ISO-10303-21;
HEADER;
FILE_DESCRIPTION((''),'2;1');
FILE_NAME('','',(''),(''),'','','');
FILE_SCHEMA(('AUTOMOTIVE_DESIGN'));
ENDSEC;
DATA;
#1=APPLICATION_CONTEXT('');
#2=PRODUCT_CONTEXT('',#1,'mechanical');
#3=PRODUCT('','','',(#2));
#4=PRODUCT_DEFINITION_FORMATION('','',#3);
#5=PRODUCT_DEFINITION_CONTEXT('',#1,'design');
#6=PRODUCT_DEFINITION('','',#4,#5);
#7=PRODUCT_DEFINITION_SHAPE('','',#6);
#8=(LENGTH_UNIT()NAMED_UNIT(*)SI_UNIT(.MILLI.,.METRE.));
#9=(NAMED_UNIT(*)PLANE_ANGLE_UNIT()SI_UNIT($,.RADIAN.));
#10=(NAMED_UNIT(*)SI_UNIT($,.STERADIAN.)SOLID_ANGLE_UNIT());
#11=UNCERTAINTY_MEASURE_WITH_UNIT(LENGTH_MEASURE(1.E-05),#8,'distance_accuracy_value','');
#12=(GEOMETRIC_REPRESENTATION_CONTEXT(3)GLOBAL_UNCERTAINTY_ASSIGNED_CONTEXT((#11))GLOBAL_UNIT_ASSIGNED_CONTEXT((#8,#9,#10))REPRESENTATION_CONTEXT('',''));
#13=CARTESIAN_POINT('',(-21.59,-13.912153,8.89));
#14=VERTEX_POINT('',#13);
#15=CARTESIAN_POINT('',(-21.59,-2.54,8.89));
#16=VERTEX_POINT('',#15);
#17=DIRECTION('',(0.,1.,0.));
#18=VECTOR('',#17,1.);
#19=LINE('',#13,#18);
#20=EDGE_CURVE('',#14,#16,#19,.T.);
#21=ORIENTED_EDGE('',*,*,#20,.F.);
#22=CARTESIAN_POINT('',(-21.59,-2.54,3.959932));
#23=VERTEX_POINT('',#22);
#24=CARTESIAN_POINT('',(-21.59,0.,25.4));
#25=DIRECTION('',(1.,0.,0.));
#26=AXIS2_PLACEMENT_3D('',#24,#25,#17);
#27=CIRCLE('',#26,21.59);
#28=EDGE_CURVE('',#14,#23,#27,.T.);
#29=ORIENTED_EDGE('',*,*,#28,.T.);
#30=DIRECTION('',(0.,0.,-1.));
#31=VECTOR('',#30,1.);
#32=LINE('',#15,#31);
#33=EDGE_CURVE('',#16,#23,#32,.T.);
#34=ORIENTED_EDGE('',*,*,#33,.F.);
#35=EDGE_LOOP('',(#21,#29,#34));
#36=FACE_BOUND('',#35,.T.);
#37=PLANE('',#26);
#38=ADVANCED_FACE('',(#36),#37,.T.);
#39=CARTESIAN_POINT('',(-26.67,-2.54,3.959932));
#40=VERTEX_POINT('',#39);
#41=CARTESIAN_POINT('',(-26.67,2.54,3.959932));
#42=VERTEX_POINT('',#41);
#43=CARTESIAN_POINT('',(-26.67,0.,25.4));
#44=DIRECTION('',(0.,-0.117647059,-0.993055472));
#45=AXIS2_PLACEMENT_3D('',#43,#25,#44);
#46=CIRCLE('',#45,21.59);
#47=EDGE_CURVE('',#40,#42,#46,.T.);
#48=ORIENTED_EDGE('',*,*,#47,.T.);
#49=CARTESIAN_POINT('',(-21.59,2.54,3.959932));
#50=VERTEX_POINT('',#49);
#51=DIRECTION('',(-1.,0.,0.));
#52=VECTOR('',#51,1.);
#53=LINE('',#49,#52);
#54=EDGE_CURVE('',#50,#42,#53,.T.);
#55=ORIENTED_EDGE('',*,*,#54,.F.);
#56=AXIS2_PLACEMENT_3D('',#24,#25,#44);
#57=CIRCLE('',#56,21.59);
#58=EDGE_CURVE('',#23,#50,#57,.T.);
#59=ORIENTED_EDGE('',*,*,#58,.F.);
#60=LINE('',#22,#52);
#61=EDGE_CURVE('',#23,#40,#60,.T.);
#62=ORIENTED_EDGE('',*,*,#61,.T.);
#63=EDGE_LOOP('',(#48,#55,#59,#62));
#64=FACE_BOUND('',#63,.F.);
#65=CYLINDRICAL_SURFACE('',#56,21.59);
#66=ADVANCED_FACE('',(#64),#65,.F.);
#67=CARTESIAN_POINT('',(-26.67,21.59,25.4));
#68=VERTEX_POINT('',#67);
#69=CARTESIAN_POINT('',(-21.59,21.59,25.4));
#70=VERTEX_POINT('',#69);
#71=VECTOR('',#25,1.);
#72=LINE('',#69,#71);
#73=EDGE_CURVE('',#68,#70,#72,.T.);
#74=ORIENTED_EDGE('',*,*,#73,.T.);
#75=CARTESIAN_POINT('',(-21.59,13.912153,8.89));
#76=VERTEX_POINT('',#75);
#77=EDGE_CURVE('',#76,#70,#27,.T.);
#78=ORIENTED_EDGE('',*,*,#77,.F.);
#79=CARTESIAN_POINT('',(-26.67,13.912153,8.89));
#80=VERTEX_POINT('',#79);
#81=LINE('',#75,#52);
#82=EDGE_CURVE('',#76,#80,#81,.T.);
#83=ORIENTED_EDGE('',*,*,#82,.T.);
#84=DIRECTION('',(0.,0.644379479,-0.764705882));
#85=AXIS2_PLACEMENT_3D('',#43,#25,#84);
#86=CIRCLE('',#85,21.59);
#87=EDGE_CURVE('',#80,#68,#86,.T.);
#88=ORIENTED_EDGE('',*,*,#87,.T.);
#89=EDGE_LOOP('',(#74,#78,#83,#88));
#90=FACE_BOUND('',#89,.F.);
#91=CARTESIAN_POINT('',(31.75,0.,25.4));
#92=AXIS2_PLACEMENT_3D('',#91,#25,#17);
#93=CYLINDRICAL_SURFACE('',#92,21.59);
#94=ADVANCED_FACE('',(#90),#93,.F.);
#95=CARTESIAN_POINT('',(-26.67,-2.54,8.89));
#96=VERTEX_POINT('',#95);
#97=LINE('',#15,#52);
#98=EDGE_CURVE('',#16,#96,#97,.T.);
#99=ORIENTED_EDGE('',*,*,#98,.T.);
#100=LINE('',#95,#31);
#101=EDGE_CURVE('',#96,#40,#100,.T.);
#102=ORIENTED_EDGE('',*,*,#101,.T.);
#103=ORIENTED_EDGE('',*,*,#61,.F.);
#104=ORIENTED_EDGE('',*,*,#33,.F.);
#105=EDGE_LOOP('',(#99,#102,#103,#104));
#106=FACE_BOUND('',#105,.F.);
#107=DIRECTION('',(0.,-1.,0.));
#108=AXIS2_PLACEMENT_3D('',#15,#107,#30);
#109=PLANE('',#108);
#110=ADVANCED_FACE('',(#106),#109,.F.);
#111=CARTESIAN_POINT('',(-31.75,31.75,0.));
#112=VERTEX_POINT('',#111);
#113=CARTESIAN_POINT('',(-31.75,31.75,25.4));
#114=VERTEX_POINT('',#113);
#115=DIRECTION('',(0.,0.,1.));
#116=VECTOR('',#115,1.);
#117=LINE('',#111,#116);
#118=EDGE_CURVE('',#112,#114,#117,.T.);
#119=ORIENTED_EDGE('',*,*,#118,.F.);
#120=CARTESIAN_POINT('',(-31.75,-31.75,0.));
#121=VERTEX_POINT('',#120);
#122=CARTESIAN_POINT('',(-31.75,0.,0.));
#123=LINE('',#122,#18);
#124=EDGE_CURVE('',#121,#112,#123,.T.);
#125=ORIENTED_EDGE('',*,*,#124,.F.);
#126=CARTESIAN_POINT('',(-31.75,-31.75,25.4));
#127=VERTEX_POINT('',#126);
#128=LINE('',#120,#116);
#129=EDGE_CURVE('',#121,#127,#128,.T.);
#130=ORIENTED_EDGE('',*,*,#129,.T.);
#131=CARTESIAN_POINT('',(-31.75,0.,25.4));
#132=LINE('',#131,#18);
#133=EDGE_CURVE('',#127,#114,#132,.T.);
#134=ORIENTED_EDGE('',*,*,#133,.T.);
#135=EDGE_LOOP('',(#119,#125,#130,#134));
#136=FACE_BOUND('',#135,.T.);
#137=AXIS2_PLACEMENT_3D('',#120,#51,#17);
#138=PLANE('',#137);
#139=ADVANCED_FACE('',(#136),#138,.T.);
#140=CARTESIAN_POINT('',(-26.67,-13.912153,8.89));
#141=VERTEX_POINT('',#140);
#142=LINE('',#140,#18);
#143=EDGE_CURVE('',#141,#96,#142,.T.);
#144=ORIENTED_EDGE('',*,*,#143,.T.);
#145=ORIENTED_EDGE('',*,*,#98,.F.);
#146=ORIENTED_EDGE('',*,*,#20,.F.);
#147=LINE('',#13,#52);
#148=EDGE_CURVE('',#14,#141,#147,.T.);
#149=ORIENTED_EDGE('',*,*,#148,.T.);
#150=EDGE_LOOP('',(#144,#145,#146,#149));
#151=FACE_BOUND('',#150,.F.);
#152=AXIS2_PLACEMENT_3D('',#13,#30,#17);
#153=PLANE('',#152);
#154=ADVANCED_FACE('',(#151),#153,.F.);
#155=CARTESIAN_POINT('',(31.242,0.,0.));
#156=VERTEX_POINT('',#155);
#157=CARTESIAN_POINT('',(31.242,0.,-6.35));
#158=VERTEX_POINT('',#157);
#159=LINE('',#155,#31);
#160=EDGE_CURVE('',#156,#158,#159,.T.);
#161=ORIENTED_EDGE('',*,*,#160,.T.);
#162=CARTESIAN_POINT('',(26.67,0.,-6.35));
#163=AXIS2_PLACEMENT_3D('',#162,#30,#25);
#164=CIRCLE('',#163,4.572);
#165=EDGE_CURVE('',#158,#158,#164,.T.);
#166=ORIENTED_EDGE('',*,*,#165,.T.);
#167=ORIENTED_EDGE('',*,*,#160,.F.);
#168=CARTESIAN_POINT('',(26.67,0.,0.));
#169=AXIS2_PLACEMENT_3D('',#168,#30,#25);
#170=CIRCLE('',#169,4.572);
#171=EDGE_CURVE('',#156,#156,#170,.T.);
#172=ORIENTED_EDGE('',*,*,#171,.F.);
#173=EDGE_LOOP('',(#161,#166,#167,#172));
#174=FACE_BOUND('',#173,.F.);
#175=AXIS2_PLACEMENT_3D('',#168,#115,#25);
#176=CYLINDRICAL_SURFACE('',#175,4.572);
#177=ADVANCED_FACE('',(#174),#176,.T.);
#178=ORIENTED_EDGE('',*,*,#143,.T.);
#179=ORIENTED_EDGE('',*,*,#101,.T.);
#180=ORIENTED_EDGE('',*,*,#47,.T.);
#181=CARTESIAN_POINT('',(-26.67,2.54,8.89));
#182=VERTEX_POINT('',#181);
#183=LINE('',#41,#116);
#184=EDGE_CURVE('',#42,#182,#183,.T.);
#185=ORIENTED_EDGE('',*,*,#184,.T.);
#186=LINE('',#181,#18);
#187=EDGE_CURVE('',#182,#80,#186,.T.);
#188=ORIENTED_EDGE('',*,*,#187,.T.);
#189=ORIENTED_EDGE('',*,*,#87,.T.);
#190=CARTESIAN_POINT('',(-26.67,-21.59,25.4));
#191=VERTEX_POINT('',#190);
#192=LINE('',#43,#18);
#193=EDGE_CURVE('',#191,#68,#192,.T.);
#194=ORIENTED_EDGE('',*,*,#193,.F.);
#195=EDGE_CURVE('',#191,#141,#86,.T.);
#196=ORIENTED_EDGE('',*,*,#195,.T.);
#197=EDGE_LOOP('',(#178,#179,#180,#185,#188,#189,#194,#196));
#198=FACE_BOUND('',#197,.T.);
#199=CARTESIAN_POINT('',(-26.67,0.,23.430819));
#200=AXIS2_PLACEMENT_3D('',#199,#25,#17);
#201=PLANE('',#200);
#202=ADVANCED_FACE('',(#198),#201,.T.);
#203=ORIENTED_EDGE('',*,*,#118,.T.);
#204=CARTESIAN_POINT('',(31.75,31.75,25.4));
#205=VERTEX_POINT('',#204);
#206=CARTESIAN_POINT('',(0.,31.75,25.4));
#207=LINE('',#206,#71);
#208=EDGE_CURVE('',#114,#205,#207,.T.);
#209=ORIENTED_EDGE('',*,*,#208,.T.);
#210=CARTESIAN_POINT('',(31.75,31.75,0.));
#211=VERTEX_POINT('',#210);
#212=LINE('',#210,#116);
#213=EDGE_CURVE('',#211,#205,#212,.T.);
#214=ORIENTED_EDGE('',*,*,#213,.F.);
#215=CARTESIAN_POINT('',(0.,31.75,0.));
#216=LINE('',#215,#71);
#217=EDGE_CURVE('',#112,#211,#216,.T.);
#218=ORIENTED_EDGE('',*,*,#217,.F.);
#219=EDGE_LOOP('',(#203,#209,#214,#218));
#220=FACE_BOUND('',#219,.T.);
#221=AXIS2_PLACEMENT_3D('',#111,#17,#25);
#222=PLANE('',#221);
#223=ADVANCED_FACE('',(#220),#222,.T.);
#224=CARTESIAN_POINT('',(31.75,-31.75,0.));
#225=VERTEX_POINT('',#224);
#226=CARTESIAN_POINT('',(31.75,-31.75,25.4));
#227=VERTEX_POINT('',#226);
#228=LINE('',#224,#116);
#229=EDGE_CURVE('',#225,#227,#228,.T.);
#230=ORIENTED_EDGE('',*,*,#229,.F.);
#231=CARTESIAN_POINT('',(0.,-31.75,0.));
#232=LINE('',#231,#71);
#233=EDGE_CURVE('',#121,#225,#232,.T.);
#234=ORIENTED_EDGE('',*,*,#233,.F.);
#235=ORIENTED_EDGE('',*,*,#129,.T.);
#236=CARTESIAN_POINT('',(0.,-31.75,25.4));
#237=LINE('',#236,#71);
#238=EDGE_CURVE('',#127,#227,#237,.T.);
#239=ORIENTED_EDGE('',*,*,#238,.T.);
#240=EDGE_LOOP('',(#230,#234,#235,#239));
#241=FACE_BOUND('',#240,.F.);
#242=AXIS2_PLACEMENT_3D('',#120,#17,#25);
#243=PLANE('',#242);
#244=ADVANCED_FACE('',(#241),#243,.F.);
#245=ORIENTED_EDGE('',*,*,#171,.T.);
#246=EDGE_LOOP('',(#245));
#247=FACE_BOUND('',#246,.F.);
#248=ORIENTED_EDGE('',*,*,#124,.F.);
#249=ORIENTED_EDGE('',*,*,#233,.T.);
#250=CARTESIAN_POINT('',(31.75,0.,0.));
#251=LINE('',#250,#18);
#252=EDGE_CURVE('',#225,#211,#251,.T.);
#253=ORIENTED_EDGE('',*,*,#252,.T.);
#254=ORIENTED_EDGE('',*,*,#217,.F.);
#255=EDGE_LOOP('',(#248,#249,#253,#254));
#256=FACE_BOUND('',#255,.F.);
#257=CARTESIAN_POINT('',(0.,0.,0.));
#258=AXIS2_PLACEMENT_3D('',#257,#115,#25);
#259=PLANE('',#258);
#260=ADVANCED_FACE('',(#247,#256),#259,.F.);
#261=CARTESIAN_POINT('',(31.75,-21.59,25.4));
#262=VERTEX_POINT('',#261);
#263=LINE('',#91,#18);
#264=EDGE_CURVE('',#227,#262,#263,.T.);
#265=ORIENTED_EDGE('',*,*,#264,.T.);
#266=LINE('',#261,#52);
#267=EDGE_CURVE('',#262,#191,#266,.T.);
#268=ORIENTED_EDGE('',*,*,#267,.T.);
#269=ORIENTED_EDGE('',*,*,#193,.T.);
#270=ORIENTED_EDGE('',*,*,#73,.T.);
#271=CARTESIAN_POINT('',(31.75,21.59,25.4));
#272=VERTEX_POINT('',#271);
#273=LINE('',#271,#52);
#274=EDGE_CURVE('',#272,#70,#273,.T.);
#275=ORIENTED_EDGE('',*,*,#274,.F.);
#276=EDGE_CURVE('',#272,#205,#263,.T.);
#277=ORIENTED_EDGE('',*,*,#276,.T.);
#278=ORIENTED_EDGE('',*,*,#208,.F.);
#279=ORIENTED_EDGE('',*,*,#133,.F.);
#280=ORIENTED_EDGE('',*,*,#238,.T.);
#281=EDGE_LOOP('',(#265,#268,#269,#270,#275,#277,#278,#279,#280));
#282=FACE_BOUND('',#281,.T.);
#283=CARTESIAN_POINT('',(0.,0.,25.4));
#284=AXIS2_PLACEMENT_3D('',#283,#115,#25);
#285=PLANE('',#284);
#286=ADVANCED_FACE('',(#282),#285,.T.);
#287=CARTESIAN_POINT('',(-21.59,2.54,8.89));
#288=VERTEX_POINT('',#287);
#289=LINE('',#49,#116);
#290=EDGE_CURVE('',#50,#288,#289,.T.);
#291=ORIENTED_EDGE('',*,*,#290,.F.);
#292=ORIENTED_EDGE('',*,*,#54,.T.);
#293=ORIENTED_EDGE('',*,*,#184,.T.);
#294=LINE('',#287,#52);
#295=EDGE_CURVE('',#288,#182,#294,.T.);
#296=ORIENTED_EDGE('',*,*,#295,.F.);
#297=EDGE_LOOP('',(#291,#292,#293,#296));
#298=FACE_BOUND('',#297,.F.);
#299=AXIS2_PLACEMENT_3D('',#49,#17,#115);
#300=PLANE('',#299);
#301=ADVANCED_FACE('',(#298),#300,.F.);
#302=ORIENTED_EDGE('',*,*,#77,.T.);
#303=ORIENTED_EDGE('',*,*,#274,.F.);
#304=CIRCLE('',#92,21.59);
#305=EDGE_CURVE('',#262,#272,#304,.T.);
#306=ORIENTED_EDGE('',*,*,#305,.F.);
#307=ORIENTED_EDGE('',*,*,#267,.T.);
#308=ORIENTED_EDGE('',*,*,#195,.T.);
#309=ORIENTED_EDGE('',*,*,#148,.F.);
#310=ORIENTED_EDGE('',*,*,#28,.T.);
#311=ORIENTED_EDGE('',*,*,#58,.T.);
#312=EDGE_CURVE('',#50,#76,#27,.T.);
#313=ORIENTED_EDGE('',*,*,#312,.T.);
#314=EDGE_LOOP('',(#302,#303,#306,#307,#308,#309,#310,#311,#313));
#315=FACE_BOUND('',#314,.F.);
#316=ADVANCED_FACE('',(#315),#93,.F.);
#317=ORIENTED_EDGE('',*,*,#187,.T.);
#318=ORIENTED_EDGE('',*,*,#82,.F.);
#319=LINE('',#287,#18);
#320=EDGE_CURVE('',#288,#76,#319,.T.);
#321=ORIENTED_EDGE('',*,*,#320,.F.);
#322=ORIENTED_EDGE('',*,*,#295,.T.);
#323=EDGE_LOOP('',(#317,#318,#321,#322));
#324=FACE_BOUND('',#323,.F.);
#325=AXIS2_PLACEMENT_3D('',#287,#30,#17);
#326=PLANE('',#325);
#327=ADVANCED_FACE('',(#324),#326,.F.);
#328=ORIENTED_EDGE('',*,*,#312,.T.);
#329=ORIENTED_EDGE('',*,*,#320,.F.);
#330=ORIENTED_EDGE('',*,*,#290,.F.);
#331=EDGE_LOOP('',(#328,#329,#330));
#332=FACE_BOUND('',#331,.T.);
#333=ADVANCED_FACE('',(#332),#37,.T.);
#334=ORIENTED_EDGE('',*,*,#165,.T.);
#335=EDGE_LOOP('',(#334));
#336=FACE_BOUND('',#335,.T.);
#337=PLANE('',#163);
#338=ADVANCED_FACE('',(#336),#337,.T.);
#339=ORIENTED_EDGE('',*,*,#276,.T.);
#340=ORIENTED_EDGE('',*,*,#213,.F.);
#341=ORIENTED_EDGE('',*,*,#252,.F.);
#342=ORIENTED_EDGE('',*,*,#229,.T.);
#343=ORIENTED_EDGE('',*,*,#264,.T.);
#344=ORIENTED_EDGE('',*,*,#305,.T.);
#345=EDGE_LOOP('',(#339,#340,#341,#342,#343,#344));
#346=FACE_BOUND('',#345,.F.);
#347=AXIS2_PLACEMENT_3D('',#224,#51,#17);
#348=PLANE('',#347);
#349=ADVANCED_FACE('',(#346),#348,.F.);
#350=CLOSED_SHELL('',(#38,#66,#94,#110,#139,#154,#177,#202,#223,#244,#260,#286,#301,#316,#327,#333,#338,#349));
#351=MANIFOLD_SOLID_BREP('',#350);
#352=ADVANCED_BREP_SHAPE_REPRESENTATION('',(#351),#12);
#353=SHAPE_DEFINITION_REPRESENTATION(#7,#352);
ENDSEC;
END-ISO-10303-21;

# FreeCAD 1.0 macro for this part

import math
import FreeCAD as App
import Part
import Sketcher
from FreeCAD import Vector
Q = App.Units.Quantity

doc = App.newDocument("Part")
body = doc.addObject("PartDesign::Body", "Body")

sketch1 = body.newObject("Sketcher::SketchObject", "Sketch")
sketch1.AttachmentSupport = (doc.getObject("XY_Plane"), [""])
sketch1.MapMode = "FlatFace"
sketch1.addGeometry([
    Part.LineSegment(Vector(-32, 32, 0), Vector(-32, -32, 0)),
    Part.LineSegment(Vector(-32, -32, 0), Vector(32, -32, 0)),
    Part.LineSegment(Vector(32, -32, 0), Vector(32, 32, 0)),
    Part.LineSegment(Vector(32, 32, 0), Vector(-32, 32, 0)),
], False)
sketch1.addConstraint([
    Sketcher.Constraint("Coincident", 0, 2, 1, 1),
    Sketcher.Constraint("Coincident", 1, 2, 2, 1),
    Sketcher.Constraint("Coincident", 2, 2, 3, 1),
    Sketcher.Constraint("Coincident", 3, 2, 0, 1),
    Sketcher.Constraint("Vertical", 0),
    Sketcher.Constraint("Horizontal", 1),
    Sketcher.Constraint("Vertical", 2),
    Sketcher.Constraint("Horizontal", 3),
    Sketcher.Constraint("Symmetric", 0, 2, 2, 2, -1, 1),
    Sketcher.Constraint("Equal", 3, 0),
    Sketcher.Constraint("DistanceX", 1, 1, 1, 2, Q("2.5 in")),
])
pad1 = body.newObject("PartDesign::Pad", "Pad")
pad1.Profile = sketch1
pad1.Length = Q("1 in")

sketch2 = body.newObject("Sketcher::SketchObject", "Sketch001")
sketch2.AttachmentSupport = (doc.getObject("YZ_Plane"), [""])
sketch2.MapMode = "FlatFace"
sketch2.AttachmentOffset = App.Placement(Vector(0, 0, 1.25 * 25.4), App.Rotation())
sketch2.addGeometry(Part.Circle(Vector(0, 25, 0), Vector(0, 0, 1), 22), False)
sketch2.addConstraint([
    Sketcher.Constraint("PointOnObject", 0, 3, -2),
    Sketcher.Constraint("Diameter", 0, Q("1.7 in")),
    Sketcher.Constraint("DistanceY", -1, 1, 0, 3, Q("1 in")),
])
pocket1 = body.newObject("PartDesign::Pocket", "Pocket")
pocket1.Profile = sketch2
pocket1.Length = Q("2.1 in")

sketch3 = body.newObject("Sketcher::SketchObject", "Sketch002")
sketch3.AttachmentSupport = (doc.getObject("XY_Plane"), [""])
sketch3.MapMode = "FlatFace"
sketch3.addGeometry(Part.Circle(Vector(26.7, 0, 0), Vector(0, 0, 1), 4.6), False)
sketch3.addConstraint([
    Sketcher.Constraint("PointOnObject", 0, 3, -1),
    Sketcher.Constraint("Diameter", 0, Q("0.36 in")),
    Sketcher.Constraint("DistanceX", -1, 1, 0, 3, Q("1.05 in")),
])
pad2 = body.newObject("PartDesign::Pad", "Pad001")
pad2.Profile = sketch3
pad2.Length = Q("0.25 in")
pad2.Reversed = True

sketch4 = body.newObject("Sketcher::SketchObject", "Sketch003")
sketch4.AttachmentSupport = (doc.getObject("YZ_Plane"), [""])
sketch4.MapMode = "FlatFace"
sketch4.AttachmentOffset = App.Placement(Vector(0, 0, -0.85 * 25.4), App.Rotation())
sketch4.addGeometry([
    Part.LineSegment(Vector(-2.5, 8.9, 0), Vector(-2.5, 4, 0)),
    Part.ArcOfCircle(Part.Circle(Vector(0, 25.4, 0), Vector(0, 0, 1), 21.6), math.radians(-96.76), math.radians(-83.24)),
    Part.LineSegment(Vector(2.5, 4, 0), Vector(2.5, 8.9, 0)),
    Part.LineSegment(Vector(2.5, 8.9, 0), Vector(13.9, 8.9, 0)),
    Part.ArcOfCircle(Part.Circle(Vector(0, 25.4, 0), Vector(0, 0, 1), 21.6), math.radians(-50), math.radians(230)),
    Part.LineSegment(Vector(-13.9, 8.9, 0), Vector(-2.5, 8.9, 0)),
], False)
sketch4.addConstraint([
    Sketcher.Constraint("Coincident", 0, 2, 1, 1),
    Sketcher.Constraint("Coincident", 1, 2, 2, 1),
    Sketcher.Constraint("Coincident", 2, 2, 3, 1),
    Sketcher.Constraint("Coincident", 3, 2, 4, 1),
    Sketcher.Constraint("Coincident", 4, 2, 5, 1),
    Sketcher.Constraint("Coincident", 5, 2, 0, 1),
    Sketcher.Constraint("Vertical", 0),
    Sketcher.Constraint("Vertical", 2),
    Sketcher.Constraint("Horizontal", 3),
    Sketcher.Constraint("Horizontal", 5),
    Sketcher.Constraint("Coincident", 4, 3, 1, 3),
    Sketcher.Constraint("Equal", 1, 4),
    Sketcher.Constraint("Symmetric", 0, 2, 1, 2, -2),
    Sketcher.Constraint("Horizontal", 3, 2, 4, 2),
    Sketcher.Constraint("Radius", 1, Q("0.85 in")),
    Sketcher.Constraint("DistanceY", -1, 1, 1, 3, Q("1 in")),
    Sketcher.Constraint("DistanceX", 0, 2, -1, 1, Q("0.1 in")),
    Sketcher.Constraint("DistanceY", -1, 1, 2, 2, Q("0.35 in")),
])
pocket2 = body.newObject("PartDesign::Pocket", "Pocket001")
pocket2.Profile = sketch4
pocket2.Length = Q("0.2 in")

sketch5 = body.newObject("Sketcher::SketchObject", "Sketch004")
sketch5.AttachmentSupport = (doc.getObject("YZ_Plane"), [""])
sketch5.MapMode = "FlatFace"
sketch5.AttachmentOffset = App.Placement(Vector(0, 0, -0.85 * 25.4), App.Rotation())
sketch5.addGeometry([
    Part.LineSegment(Vector(-2.5, 8.9, 0), Vector(-2.5, 4, 0)),
    Part.ArcOfCircle(Part.Circle(Vector(0, 25.4, 0), Vector(0, 0, 1), 21.6), math.radians(-96.76), math.radians(-83.24)),
    Part.LineSegment(Vector(2.5, 4, 0), Vector(2.5, 8.9, 0)),
    Part.LineSegment(Vector(2.5, 8.9, 0), Vector(13.9, 8.9, 0)),
    Part.ArcOfCircle(Part.Circle(Vector(0, 25.4, 0), Vector(0, 0, 1), 21.6), math.radians(-50), math.radians(230)),
    Part.LineSegment(Vector(-13.9, 8.9, 0), Vector(-2.5, 8.9, 0)),
], False)
sketch5.addConstraint([
    Sketcher.Constraint("Coincident", 0, 2, 1, 1),
    Sketcher.Constraint("Coincident", 1, 2, 2, 1),
    Sketcher.Constraint("Coincident", 2, 2, 3, 1),
    Sketcher.Constraint("Coincident", 3, 2, 4, 1),
    Sketcher.Constraint("Coincident", 4, 2, 5, 1),
    Sketcher.Constraint("Coincident", 5, 2, 0, 1),
    Sketcher.Constraint("Vertical", 0),
    Sketcher.Constraint("Vertical", 2),
    Sketcher.Constraint("Horizontal", 3),
    Sketcher.Constraint("Horizontal", 5),
    Sketcher.Constraint("Coincident", 4, 3, 1, 3),
    Sketcher.Constraint("Equal", 1, 4),
    Sketcher.Constraint("Symmetric", 0, 2, 1, 2, -2),
    Sketcher.Constraint("Horizontal", 3, 2, 4, 2),
    Sketcher.Constraint("Radius", 1, Q("0.85 in")),
    Sketcher.Constraint("DistanceY", -1, 1, 1, 3, Q("1 in")),
    Sketcher.Constraint("DistanceX", 0, 2, -1, 1, Q("0.1 in")),
    Sketcher.Constraint("DistanceY", -1, 1, 2, 2, Q("0.35 in")),
])
pocket3 = body.newObject("PartDesign::Pocket", "Pocket002")
pocket3.Profile = sketch5
pocket3.Length = Q("0.2 in")

doc.recompute()
